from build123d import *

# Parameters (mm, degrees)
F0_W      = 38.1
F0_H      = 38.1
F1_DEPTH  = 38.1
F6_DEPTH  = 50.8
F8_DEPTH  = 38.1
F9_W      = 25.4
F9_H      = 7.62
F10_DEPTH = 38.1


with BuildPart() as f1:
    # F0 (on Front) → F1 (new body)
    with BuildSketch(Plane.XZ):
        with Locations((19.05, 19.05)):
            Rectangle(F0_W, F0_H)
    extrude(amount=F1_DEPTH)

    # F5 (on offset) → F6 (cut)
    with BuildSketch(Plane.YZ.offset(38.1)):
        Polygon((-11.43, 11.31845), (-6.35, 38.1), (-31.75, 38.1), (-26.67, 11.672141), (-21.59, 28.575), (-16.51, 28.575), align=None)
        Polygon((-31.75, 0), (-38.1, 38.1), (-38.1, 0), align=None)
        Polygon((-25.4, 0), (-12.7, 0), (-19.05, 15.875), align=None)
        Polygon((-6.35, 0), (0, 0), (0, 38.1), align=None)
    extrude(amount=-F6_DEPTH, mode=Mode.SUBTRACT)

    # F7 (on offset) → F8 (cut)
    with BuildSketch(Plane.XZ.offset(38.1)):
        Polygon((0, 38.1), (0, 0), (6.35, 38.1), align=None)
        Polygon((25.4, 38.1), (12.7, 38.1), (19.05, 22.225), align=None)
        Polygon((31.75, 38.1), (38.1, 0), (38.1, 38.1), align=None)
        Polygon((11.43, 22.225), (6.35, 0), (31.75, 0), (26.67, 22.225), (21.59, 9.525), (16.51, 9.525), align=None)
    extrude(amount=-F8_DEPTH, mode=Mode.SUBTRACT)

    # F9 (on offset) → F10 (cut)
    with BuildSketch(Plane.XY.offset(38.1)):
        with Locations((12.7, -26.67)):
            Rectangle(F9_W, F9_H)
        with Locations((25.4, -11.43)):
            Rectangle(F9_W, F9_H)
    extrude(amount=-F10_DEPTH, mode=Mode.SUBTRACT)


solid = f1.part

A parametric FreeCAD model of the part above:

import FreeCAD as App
import Part
import Sketcher

V = App.Vector
Q = App.Units.Quantity

doc = App.newDocument("Part")
body = doc.addObject("PartDesign::Body", "Body")

# Sketch on XZ plane
sketch1 = doc.addObject("Sketcher::SketchObject", "Sketch")
body.addObject(sketch1)
sketch1.AttachmentSupport = (doc.XZ_Plane, [""])
sketch1.MapMode = "FlatFace"
sketch1.addGeometry([
    Part.LineSegment(V(0, 38.1, 0), V(0, 0, 0)),
    Part.LineSegment(V(0, 0, 0), V(38.1, 0, 0)),
    Part.LineSegment(V(38.1, 0, 0), V(38.1, 38.1, 0)),
    Part.LineSegment(V(38.1, 38.1, 0), V(0, 38.1, 0)),
], False)
sketch1.addConstraint([
    Sketcher.Constraint("Coincident", 0, 2, 1, 1),
    Sketcher.Constraint("Coincident", 1, 2, 2, 1),
    Sketcher.Constraint("Coincident", 2, 2, 3, 1),
    Sketcher.Constraint("Coincident", 3, 2, 0, 1),
    Sketcher.Constraint("Vertical", 0),
    Sketcher.Constraint("Horizontal", 1),
    Sketcher.Constraint("Vertical", 2),
    Sketcher.Constraint("Horizontal", 3),
    Sketcher.Constraint("Coincident", 0, 2, -1, 1),
    Sketcher.Constraint("Equal", 3, 0),
    Sketcher.Constraint("DistanceX", 1, 1, 1, 2, Q("1.5 in")),
])
pad1 = doc.addObject("PartDesign::Pad", "Pad")
body.addObject(pad1)
pad1.Profile = sketch1
pad1.Length = Q("1.5 in")

# Sketch on YZ plane
sketch2 = doc.addObject("Sketcher::SketchObject", "Sketch001")
body.addObject(sketch2)
sketch2.AttachmentSupport = (doc.YZ_Plane, [""])
sketch2.MapMode = "FlatFace"
sketch2.AttachmentOffset = App.Placement(V(0, 0, 1.5 * 25.4), App.Rotation())
sketch2.addGeometry([
    Part.LineSegment(V(-11.43, 11.31845, 0), V(-6.35, 38.1, 0)),  # 0
    Part.LineSegment(V(-6.35, 38.1, 0), V(-31.75, 38.1, 0)),  # 1
    Part.LineSegment(V(-31.75, 38.1, 0), V(-26.67, 11.672141, 0)),  # 2
    Part.LineSegment(V(-26.67, 11.672141, 0), V(-21.59, 28.575, 0)),  # 3
    Part.LineSegment(V(-21.59, 28.575, 0), V(-16.51, 28.575, 0)),  # 4
    Part.LineSegment(V(-16.51, 28.575, 0), V(-11.43, 11.31845, 0)),  # 5
    Part.LineSegment(V(-31.75, 0, 0), V(-38.1, 38.1, 0)),  # 6
    Part.LineSegment(V(-38.1, 38.1, 0), V(-38.1, 0, 0)),  # 7
    Part.LineSegment(V(-38.1, 0, 0), V(-31.75, 0, 0)),  # 8
    Part.LineSegment(V(-25.4, 0, 0), V(-12.7, 0, 0)),  # 9
    Part.LineSegment(V(-12.7, 0, 0), V(-19.05, 15.875, 0)),  # 10
    Part.LineSegment(V(-19.05, 15.875, 0), V(-25.4, 0, 0)),  # 11
    Part.LineSegment(V(-6.35, 0, 0), V(0, 0, 0)),  # 12
    Part.LineSegment(V(0, 0, 0), V(0, 38.1, 0)),  # 13
    Part.LineSegment(V(0, 38.1, 0), V(-6.35, 0, 0)),  # 14
], False)
sketch2.addConstraint([
    Sketcher.Constraint("Coincident", 0, 2, 1, 1),
    Sketcher.Constraint("Coincident", 1, 2, 2, 1),
    Sketcher.Constraint("Coincident", 2, 2, 3, 1),
    Sketcher.Constraint("Coincident", 3, 2, 4, 1),
    Sketcher.Constraint("Coincident", 4, 2, 5, 1),
    Sketcher.Constraint("Coincident", 5, 2, 0, 1),
    Sketcher.Constraint("Coincident", 6, 2, 7, 1),
    Sketcher.Constraint("Coincident", 7, 2, 8, 1),
    Sketcher.Constraint("Coincident", 8, 2, 6, 1),
    Sketcher.Constraint("Coincident", 9, 2, 10, 1),
    Sketcher.Constraint("Coincident", 10, 2, 11, 1),
    Sketcher.Constraint("Coincident", 11, 2, 9, 1),
    Sketcher.Constraint("Coincident", 12, 2, 13, 1),
    Sketcher.Constraint("Coincident", 13, 2, 14, 1),
    Sketcher.Constraint("Coincident", 14, 2, 12, 1),
    Sketcher.Constraint("Horizontal", 1),
    Sketcher.Constraint("Horizontal", 4),
    Sketcher.Constraint("Vertical", 7),
    Sketcher.Constraint("Horizontal", 8),
    Sketcher.Constraint("Horizontal", 9),
    Sketcher.Constraint("Horizontal", 12),
    Sketcher.Constraint("Vertical", 13),
    Sketcher.Constraint("Coincident", 12, 2, -1, 1),
    Sketcher.Constraint("PointOnObject", 7, 2, -1),
    Sketcher.Constraint("PointOnObject", 9, 2, -1),
    Sketcher.Constraint("Horizontal", 1, 2, 6, 2),
    Sketcher.Constraint("Horizontal", 6, 2, 13, 2),
    Sketcher.Constraint("Vertical", 1, 2, 8, 2),
    Sketcher.Constraint("Vertical", 0, 2, 14, 2),
    Sketcher.Constraint("Equal", 8, 12),
    Sketcher.Constraint("Equal", 10, 11),
    Sketcher.Constraint("DistanceX", 1, 2, 1, 1, Q("1 in")),
    Sketcher.Constraint("DistanceX", 4, 1, 4, 2, Q("0.2 in")),
    Sketcher.Constraint("DistanceX", 9, 1, 9, 2, Q("0.5 in")),
    Sketcher.Constraint("DistanceY", 7, 2, 7, 1, Q("1.5 in")),
    Sketcher.Constraint("DistanceX", 11, 2, -1, 1, Q("1 in")),
    Sketcher.Constraint("DistanceX", 7, 2, 9, 2, Q("1 in")),
    Sketcher.Constraint("DistanceX", 1, 2, 2, 2, Q("0.2 in")),
    Sketcher.Constraint("DistanceX", 1, 2, 3, 2, Q("0.4 in")),
    Sketcher.Constraint("DistanceX", 2, 2, 5, 2, Q("0.6 in")),
    Sketcher.Constraint("DistanceY", 10, 2, 3, 2, Q("0.5 in")),
    Sketcher.Constraint("DistanceY", -1, 1, 3, 2, Q("1.125 in")),
    Sketcher.Constraint("DistanceY", -1, 1, 2, 2, 11.672141),
    Sketcher.Constraint("DistanceY", -1, 1, 5, 2, 11.31845),
])
pocket1 = doc.addObject("PartDesign::Pocket", "Pocket")
body.addObject(pocket1)
pocket1.Profile = sketch2
pocket1.Length = Q("2 in")

# Sketch on XZ plane
sketch3 = doc.addObject("Sketcher::SketchObject", "Sketch002")
body.addObject(sketch3)
sketch3.AttachmentSupport = (doc.XZ_Plane, [""])
sketch3.MapMode = "FlatFace"
sketch3.AttachmentOffset = App.Placement(V(0, 0, 1.5 * 25.4), App.Rotation())
sketch3.addGeometry([
    Part.LineSegment(V(0, 38.1, 0), V(0, 0, 0)),  # 0
    Part.LineSegment(V(0, 0, 0), V(6.35, 38.1, 0)),  # 1
    Part.LineSegment(V(6.35, 38.1, 0), V(0, 38.1, 0)),  # 2
    Part.LineSegment(V(25.4, 38.1, 0), V(12.7, 38.1, 0)),  # 3
    Part.LineSegment(V(12.7, 38.1, 0), V(19.05, 22.225, 0)),  # 4
    Part.LineSegment(V(19.05, 22.225, 0), V(25.4, 38.1, 0)),  # 5
    Part.LineSegment(V(31.75, 38.1, 0), V(38.1, 0, 0)),  # 6
    Part.LineSegment(V(38.1, 0, 0), V(38.1, 38.1, 0)),  # 7
    Part.LineSegment(V(38.1, 38.1, 0), V(31.75, 38.1, 0)),  # 8
    Part.LineSegment(V(11.43, 22.225, 0), V(6.35, 0, 0)),  # 9
    Part.LineSegment(V(6.35, 0, 0), V(31.75, 0, 0)),  # 10
    Part.LineSegment(V(31.75, 0, 0), V(26.67, 22.225, 0)),  # 11
    Part.LineSegment(V(26.67, 22.225, 0), V(21.59, 9.525, 0)),  # 12
    Part.LineSegment(V(21.59, 9.525, 0), V(16.51, 9.525, 0)),  # 13
    Part.LineSegment(V(16.51, 9.525, 0), V(11.43, 22.225, 0)),  # 14
], False)
sketch3.addConstraint([
    Sketcher.Constraint("Coincident", 0, 2, 1, 1),
    Sketcher.Constraint("Coincident", 1, 2, 2, 1),
    Sketcher.Constraint("Coincident", 2, 2, 0, 1),
    Sketcher.Constraint("Coincident", 3, 2, 4, 1),
    Sketcher.Constraint("Coincident", 4, 2, 5, 1),
    Sketcher.Constraint("Coincident", 5, 2, 3, 1),
    Sketcher.Constraint("Coincident", 6, 2, 7, 1),
    Sketcher.Constraint("Coincident", 7, 2, 8, 1),
    Sketcher.Constraint("Coincident", 8, 2, 6, 1),
    Sketcher.Constraint("Coincident", 9, 2, 10, 1),
    Sketcher.Constraint("Coincident", 10, 2, 11, 1),
    Sketcher.Constraint("Coincident", 11, 2, 12, 1),
    Sketcher.Constraint("Coincident", 12, 2, 13, 1),
    Sketcher.Constraint("Coincident", 13, 2, 14, 1),
    Sketcher.Constraint("Coincident", 14, 2, 9, 1),
    Sketcher.Constraint("Vertical", 0),
    Sketcher.Constraint("Horizontal", 2),
    Sketcher.Constraint("Horizontal", 3),
    Sketcher.Constraint("Vertical", 7),
    Sketcher.Constraint("Horizontal", 8),
    Sketcher.Constraint("Horizontal", 10),
    Sketcher.Constraint("Horizontal", 13),
    Sketcher.Constraint("Coincident", 0, 2, -1, 1),
    Sketcher.Constraint("PointOnObject", 6, 2, -1),
    Sketcher.Constraint("PointOnObject", 9, 2, -1),
    Sketcher.Constraint("Parallel", 5, 12),
    Sketcher.Constraint("Parallel", 4, 14),
    Sketcher.Constraint("Horizontal", 2, 2, 3, 2),
    Sketcher.Constraint("Horizontal", 5, 2, 7, 2),
    Sketcher.Constraint("Horizontal", 4, 2, 11, 2),
    Sketcher.Constraint("Horizontal", 11, 2, 14, 2),
    Sketcher.Constraint("Vertical", 1, 2, 9, 2),
    Sketcher.Constraint("Vertical", 8, 2, 10, 2),
    Sketcher.Constraint("Equal", 2, 8),
    Sketcher.Constraint("Equal", 4, 5),
    Sketcher.Constraint("Equal", 9, 11),
    Sketcher.Constraint("DistanceX", 10, 1, 10, 2, Q("1 in")),
    Sketcher.Constraint("DistanceX", 3, 2, 3, 1, Q("0.5 in")),
    Sketcher.Constraint("DistanceX", 13, 2, 13, 1, Q("0.2 in")),
    Sketcher.Constraint("DistanceY", 0, 2, 0, 1, Q("1.5 in")),
    Sketcher.Constraint("DistanceX", -1, 1, 5, 2, Q("1 in")),
    Sketcher.Constraint("DistanceX", 3, 2, 6, 2, Q("1 in")),
    Sketcher.Constraint("DistanceX", 4, 2, 11, 2, Q("0.3 in")),
    Sketcher.Constraint("DistanceY", 12, 2, 4, 2, Q("0.5 in")),
])
pocket2 = doc.addObject("PartDesign::Pocket", "Pocket001")
body.addObject(pocket2)
pocket2.Profile = sketch3
pocket2.Length = Q("1.5 in")

# Sketch on XY plane
sketch4 = doc.addObject("Sketcher::SketchObject", "Sketch003")
body.addObject(sketch4)
sketch4.AttachmentSupport = (doc.XY_Plane, [""])
sketch4.MapMode = "FlatFace"
sketch4.AttachmentOffset = App.Placement(V(0, 0, 1.5 * 25.4), App.Rotation())
sketch4.addGeometry([
    Part.LineSegment(V(0, -22.86, 0), V(0, -30.48, 0)),  # 0
    Part.LineSegment(V(0, -30.48, 0), V(25.4, -30.48, 0)),  # 1
    Part.LineSegment(V(25.4, -30.48, 0), V(25.4, -22.86, 0)),  # 2
    Part.LineSegment(V(25.4, -22.86, 0), V(0, -22.86, 0)),  # 3
    Part.LineSegment(V(12.7, -7.62, 0), V(12.7, -15.24, 0)),  # 4
    Part.LineSegment(V(12.7, -15.24, 0), V(38.1, -15.24, 0)),  # 5
    Part.LineSegment(V(38.1, -15.24, 0), V(38.1, -7.62, 0)),  # 6
    Part.LineSegment(V(38.1, -7.62, 0), V(12.7, -7.62, 0)),  # 7
], False)
sketch4.addConstraint([
    Sketcher.Constraint("Coincident", 0, 2, 1, 1),
    Sketcher.Constraint("Coincident", 1, 2, 2, 1),
    Sketcher.Constraint("Coincident", 2, 2, 3, 1),
    Sketcher.Constraint("Coincident", 3, 2, 0, 1),
    Sketcher.Constraint("Coincident", 4, 2, 5, 1),
    Sketcher.Constraint("Coincident", 5, 2, 6, 1),
    Sketcher.Constraint("Coincident", 6, 2, 7, 1),
    Sketcher.Constraint("Coincident", 7, 2, 4, 1),
    Sketcher.Constraint("Vertical", 0),
    Sketcher.Constraint("Horizontal", 1),
    Sketcher.Constraint("Vertical", 2),
    Sketcher.Constraint("Horizontal", 3),
    Sketcher.Constraint("Vertical", 4),
    Sketcher.Constraint("Horizontal", 5),
    Sketcher.Constraint("Vertical", 6),
    Sketcher.Constraint("Horizontal", 7),
    Sketcher.Constraint("PointOnObject", 0, 2, -2),
    Sketcher.Constraint("Equal", 3, 5),
    Sketcher.Constraint("Equal", 2, 4),
    Sketcher.Constraint("DistanceX", 1, 1, 1, 2, Q("1 in")),
    Sketcher.Constraint("DistanceY", 0, 2, 0, 1, Q("0.3 in")),
    Sketcher.Constraint("DistanceY", 0, 2, -1, 1, Q("1.2 in")),
    Sketcher.Constraint("DistanceX", -1, 1, 4, 2, Q("0.5 in")),
    Sketcher.Constraint("DistanceY", 4, 2, -1, 1, Q("0.6 in")),
])
pocket3 = doc.addObject("PartDesign::Pocket", "Pocket002")
body.addObject(pocket3)
pocket3.Profile = sketch4
pocket3.Length = Q("1.5 in")

doc.recompute()
